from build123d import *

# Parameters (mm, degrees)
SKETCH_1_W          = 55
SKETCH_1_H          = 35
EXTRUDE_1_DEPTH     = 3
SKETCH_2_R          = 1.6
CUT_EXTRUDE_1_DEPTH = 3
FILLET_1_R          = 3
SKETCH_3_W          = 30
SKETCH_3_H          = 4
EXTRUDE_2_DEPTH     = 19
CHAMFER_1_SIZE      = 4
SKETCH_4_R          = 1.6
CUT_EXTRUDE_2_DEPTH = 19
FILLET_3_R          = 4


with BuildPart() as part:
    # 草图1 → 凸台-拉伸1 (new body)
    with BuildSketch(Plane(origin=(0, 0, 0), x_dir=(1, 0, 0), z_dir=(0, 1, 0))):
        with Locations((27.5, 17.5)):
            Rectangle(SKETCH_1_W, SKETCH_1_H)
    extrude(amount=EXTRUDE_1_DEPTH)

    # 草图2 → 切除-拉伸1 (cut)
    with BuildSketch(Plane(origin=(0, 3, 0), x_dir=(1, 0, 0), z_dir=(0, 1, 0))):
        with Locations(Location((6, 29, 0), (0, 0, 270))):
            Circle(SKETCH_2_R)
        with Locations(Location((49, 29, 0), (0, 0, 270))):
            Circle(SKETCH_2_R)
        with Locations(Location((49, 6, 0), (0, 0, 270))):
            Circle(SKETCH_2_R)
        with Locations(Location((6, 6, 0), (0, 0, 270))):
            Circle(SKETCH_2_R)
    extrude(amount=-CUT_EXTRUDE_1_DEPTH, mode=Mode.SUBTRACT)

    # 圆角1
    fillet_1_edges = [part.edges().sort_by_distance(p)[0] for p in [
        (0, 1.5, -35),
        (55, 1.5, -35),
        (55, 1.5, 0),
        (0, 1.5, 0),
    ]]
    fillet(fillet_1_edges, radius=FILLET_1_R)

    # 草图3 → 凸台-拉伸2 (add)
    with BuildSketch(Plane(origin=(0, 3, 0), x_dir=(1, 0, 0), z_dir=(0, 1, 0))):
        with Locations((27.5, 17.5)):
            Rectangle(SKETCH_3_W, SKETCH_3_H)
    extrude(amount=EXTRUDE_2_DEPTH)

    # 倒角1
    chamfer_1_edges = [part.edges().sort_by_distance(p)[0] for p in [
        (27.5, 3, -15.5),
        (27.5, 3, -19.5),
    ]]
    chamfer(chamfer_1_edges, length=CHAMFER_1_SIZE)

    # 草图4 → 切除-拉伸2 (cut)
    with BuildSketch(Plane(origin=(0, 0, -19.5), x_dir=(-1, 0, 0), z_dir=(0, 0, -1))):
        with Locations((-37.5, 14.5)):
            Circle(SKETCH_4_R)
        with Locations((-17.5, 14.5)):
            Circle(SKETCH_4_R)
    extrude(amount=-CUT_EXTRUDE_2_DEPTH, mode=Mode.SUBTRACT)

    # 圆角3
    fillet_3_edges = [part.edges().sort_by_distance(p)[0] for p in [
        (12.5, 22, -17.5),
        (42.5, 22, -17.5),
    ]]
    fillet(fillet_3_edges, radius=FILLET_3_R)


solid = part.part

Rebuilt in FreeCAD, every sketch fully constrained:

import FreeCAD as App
import Part
import Sketcher

V = App.Vector


def edges_at(feature, points):
    """Names of the edges that pass closest to the given points."""
    edges = feature.Shape.Edges
    near = lambda p: min(range(len(edges)), key=lambda i: edges[i].distToShape(Part.Vertex(*p))[0])
    return sorted({f"Edge{near(p) + 1}" for p in points})

doc = App.newDocument("Part")
body = doc.addObject("PartDesign::Body", "Body")

# Sketch on XZ plane
sketch1 = body.newObject("Sketcher::SketchObject", "Sketch")
sketch1.AttachmentSupport = (doc.getObject("XZ_Plane"), [""])
sketch1.MapMode = "FlatFace"
sketch1.addGeometry(Part.LineSegment(V(0, -35, 0), V(0, 0, 0)), False)
sketch1.addGeometry(Part.LineSegment(V(0, 0, 0), V(55, 0, 0)), False)
sketch1.addGeometry(Part.LineSegment(V(55, 0, 0), V(55, -35, 0)), False)
sketch1.addGeometry(Part.LineSegment(V(55, -35, 0), V(0, -35, 0)), False)
sketch1.addConstraint(Sketcher.Constraint("Coincident", 0, 2, 1, 1))
sketch1.addConstraint(Sketcher.Constraint("Coincident", 1, 2, 2, 1))
sketch1.addConstraint(Sketcher.Constraint("Coincident", 2, 2, 3, 1))
sketch1.addConstraint(Sketcher.Constraint("Coincident", 3, 2, 0, 1))
sketch1.addConstraint(Sketcher.Constraint("Vertical", 0))
sketch1.addConstraint(Sketcher.Constraint("Horizontal", 1))
sketch1.addConstraint(Sketcher.Constraint("Vertical", 2))
sketch1.addConstraint(Sketcher.Constraint("Horizontal", 3))
sketch1.addConstraint(Sketcher.Constraint("Coincident", 0, 2, -1, 1))
sketch1.addConstraint(Sketcher.Constraint("DistanceX", 1, 1, 1, 2, 55.0))
sketch1.addConstraint(Sketcher.Constraint("DistanceY", 0, 1, 0, 2, 35.0))
pad1 = body.newObject("PartDesign::Pad", "Pad")
pad1.Profile = sketch1
pad1.Length = 3
pad1.Reversed = True

# Sketch on XZ plane
sketch2 = body.newObject("Sketcher::SketchObject", "Sketch001")
sketch2.AttachmentSupport = (doc.getObject("XZ_Plane"), [""])
sketch2.MapMode = "FlatFace"
sketch2.AttachmentOffset = App.Placement(V(0, 0, -3), App.Rotation())
sketch2.addGeometry(Part.Circle(V(6, -29, 0), V(0, 0, 1), 1.6), False)
sketch2.addGeometry(Part.Circle(V(49, -29, 0), V(0, 0, 1), 1.6), False)
sketch2.addGeometry(Part.Circle(V(49, -6, 0), V(0, 0, 1), 1.6), False)
sketch2.addGeometry(Part.Circle(V(6, -6, 0), V(0, 0, 1), 1.6), False)
sketch2.addConstraint(Sketcher.Constraint("Equal", 0, 1))
sketch2.addConstraint(Sketcher.Constraint("Equal", 1, 2))
sketch2.addConstraint(Sketcher.Constraint("Equal", 2, 3))
sketch2.addConstraint(Sketcher.Constraint("Horizontal", 0, 3, 1, 3))
sketch2.addConstraint(Sketcher.Constraint("Horizontal", 2, 3, 3, 3))
sketch2.addConstraint(Sketcher.Constraint("Vertical", 1, 3, 2, 3))
sketch2.addConstraint(Sketcher.Constraint("Vertical", 0, 3, 3, 3))
sketch2.addConstraint(Sketcher.Constraint("Diameter", 0, 3.2))
sketch2.addConstraint(Sketcher.Constraint("DistanceX", -1, 1, 0, 3, 6.0))
sketch2.addConstraint(Sketcher.Constraint("DistanceY", 0, 3, -1, 1, 29.0))
sketch2.addConstraint(Sketcher.Constraint("DistanceX", -1, 1, 1, 3, 49.0))
sketch2.addConstraint(Sketcher.Constraint("DistanceY", 2, 3, -1, 1, 6.0))
pocket1 = body.newObject("PartDesign::Pocket", "Pocket")
pocket1.Profile = sketch2
pocket1.Length = 3
pocket1.Reversed = True
doc.recompute()

fillet = body.newObject("PartDesign::Fillet", "Fillet")
fillet.Base = (pocket1, edges_at(pocket1, [
    (0, 1.5, -35),
    (55, 1.5, -35),
    (55, 1.5, 0),
    (0, 1.5, 0),
]))
fillet.Radius = 3

# Sketch on XZ plane
sketch3 = body.newObject("Sketcher::SketchObject", "Sketch002")
sketch3.AttachmentSupport = (doc.getObject("XZ_Plane"), [""])
sketch3.MapMode = "FlatFace"
sketch3.AttachmentOffset = App.Placement(V(0, 0, -3), App.Rotation())
sketch3.addGeometry(Part.LineSegment(V(12.5, -19.5, 0), V(12.5, -15.5, 0)), False)
sketch3.addGeometry(Part.LineSegment(V(12.5, -15.5, 0), V(42.5, -15.5, 0)), False)
sketch3.addGeometry(Part.LineSegment(V(42.5, -15.5, 0), V(42.5, -19.5, 0)), False)
sketch3.addGeometry(Part.LineSegment(V(42.5, -19.5, 0), V(12.5, -19.5, 0)), False)
sketch3.addConstraint(Sketcher.Constraint("Coincident", 0, 2, 1, 1))
sketch3.addConstraint(Sketcher.Constraint("Coincident", 1, 2, 2, 1))
sketch3.addConstraint(Sketcher.Constraint("Coincident", 2, 2, 3, 1))
sketch3.addConstraint(Sketcher.Constraint("Coincident", 3, 2, 0, 1))
sketch3.addConstraint(Sketcher.Constraint("Vertical", 0))
sketch3.addConstraint(Sketcher.Constraint("Horizontal", 1))
sketch3.addConstraint(Sketcher.Constraint("Vertical", 2))
sketch3.addConstraint(Sketcher.Constraint("Horizontal", 3))
sketch3.addConstraint(Sketcher.Constraint("DistanceX", 1, 1, 1, 2, 30.0))
sketch3.addConstraint(Sketcher.Constraint("DistanceY", 0, 1, 0, 2, 4.0))
sketch3.addConstraint(Sketcher.Constraint("DistanceX", -1, 1, 0, 2, 12.5))
sketch3.addConstraint(Sketcher.Constraint("DistanceY", 0, 2, -1, 1, 15.5))
pad2 = body.newObject("PartDesign::Pad", "Pad001")
pad2.Profile = sketch3
pad2.Length = 19
pad2.Reversed = True
doc.recompute()

chamfer = body.newObject("PartDesign::Chamfer", "Chamfer")
chamfer.Base = (pad2, edges_at(pad2, [(27.5, 3, -15.5), (27.5, 3, -19.5)]))
chamfer.Size = 4

# Sketch on XY plane
sketch4 = body.newObject("Sketcher::SketchObject", "Sketch003")
sketch4.AttachmentSupport = (doc.getObject("XY_Plane"), [""])
sketch4.MapMode = "FlatFace"
sketch4.AttachmentOffset = App.Placement(V(0, 0, -19.5), App.Rotation())
sketch4.addGeometry(Part.Circle(V(37.5, 14.5, 0), V(0, 0, 1), 1.6), False)
sketch4.addGeometry(Part.Circle(V(17.5, 14.5, 0), V(0, 0, 1), 1.6), False)
sketch4.addConstraint(Sketcher.Constraint("Equal", 0, 1))
sketch4.addConstraint(Sketcher.Constraint("Horizontal", 0, 3, 1, 3))
sketch4.addConstraint(Sketcher.Constraint("Diameter", 0, 3.2))
sketch4.addConstraint(Sketcher.Constraint("DistanceX", 1, 3, 0, 3, 20.0))
sketch4.addConstraint(Sketcher.Constraint("DistanceX", -1, 1, 0, 3, 37.5))
sketch4.addConstraint(Sketcher.Constraint("DistanceY", -1, 1, 0, 3, 14.5))
pocket2 = body.newObject("PartDesign::Pocket", "Pocket001")
pocket2.Profile = sketch4
pocket2.Length = 19
pocket2.Reversed = True
doc.recompute()

fillet2 = body.newObject("PartDesign::Fillet", "Fillet001")
fillet2.Base = (pocket2, edges_at(pocket2, [(12.5, 22, -17.5), (42.5, 22, -17.5)]))
fillet2.Radius = 4

doc.recompute()
